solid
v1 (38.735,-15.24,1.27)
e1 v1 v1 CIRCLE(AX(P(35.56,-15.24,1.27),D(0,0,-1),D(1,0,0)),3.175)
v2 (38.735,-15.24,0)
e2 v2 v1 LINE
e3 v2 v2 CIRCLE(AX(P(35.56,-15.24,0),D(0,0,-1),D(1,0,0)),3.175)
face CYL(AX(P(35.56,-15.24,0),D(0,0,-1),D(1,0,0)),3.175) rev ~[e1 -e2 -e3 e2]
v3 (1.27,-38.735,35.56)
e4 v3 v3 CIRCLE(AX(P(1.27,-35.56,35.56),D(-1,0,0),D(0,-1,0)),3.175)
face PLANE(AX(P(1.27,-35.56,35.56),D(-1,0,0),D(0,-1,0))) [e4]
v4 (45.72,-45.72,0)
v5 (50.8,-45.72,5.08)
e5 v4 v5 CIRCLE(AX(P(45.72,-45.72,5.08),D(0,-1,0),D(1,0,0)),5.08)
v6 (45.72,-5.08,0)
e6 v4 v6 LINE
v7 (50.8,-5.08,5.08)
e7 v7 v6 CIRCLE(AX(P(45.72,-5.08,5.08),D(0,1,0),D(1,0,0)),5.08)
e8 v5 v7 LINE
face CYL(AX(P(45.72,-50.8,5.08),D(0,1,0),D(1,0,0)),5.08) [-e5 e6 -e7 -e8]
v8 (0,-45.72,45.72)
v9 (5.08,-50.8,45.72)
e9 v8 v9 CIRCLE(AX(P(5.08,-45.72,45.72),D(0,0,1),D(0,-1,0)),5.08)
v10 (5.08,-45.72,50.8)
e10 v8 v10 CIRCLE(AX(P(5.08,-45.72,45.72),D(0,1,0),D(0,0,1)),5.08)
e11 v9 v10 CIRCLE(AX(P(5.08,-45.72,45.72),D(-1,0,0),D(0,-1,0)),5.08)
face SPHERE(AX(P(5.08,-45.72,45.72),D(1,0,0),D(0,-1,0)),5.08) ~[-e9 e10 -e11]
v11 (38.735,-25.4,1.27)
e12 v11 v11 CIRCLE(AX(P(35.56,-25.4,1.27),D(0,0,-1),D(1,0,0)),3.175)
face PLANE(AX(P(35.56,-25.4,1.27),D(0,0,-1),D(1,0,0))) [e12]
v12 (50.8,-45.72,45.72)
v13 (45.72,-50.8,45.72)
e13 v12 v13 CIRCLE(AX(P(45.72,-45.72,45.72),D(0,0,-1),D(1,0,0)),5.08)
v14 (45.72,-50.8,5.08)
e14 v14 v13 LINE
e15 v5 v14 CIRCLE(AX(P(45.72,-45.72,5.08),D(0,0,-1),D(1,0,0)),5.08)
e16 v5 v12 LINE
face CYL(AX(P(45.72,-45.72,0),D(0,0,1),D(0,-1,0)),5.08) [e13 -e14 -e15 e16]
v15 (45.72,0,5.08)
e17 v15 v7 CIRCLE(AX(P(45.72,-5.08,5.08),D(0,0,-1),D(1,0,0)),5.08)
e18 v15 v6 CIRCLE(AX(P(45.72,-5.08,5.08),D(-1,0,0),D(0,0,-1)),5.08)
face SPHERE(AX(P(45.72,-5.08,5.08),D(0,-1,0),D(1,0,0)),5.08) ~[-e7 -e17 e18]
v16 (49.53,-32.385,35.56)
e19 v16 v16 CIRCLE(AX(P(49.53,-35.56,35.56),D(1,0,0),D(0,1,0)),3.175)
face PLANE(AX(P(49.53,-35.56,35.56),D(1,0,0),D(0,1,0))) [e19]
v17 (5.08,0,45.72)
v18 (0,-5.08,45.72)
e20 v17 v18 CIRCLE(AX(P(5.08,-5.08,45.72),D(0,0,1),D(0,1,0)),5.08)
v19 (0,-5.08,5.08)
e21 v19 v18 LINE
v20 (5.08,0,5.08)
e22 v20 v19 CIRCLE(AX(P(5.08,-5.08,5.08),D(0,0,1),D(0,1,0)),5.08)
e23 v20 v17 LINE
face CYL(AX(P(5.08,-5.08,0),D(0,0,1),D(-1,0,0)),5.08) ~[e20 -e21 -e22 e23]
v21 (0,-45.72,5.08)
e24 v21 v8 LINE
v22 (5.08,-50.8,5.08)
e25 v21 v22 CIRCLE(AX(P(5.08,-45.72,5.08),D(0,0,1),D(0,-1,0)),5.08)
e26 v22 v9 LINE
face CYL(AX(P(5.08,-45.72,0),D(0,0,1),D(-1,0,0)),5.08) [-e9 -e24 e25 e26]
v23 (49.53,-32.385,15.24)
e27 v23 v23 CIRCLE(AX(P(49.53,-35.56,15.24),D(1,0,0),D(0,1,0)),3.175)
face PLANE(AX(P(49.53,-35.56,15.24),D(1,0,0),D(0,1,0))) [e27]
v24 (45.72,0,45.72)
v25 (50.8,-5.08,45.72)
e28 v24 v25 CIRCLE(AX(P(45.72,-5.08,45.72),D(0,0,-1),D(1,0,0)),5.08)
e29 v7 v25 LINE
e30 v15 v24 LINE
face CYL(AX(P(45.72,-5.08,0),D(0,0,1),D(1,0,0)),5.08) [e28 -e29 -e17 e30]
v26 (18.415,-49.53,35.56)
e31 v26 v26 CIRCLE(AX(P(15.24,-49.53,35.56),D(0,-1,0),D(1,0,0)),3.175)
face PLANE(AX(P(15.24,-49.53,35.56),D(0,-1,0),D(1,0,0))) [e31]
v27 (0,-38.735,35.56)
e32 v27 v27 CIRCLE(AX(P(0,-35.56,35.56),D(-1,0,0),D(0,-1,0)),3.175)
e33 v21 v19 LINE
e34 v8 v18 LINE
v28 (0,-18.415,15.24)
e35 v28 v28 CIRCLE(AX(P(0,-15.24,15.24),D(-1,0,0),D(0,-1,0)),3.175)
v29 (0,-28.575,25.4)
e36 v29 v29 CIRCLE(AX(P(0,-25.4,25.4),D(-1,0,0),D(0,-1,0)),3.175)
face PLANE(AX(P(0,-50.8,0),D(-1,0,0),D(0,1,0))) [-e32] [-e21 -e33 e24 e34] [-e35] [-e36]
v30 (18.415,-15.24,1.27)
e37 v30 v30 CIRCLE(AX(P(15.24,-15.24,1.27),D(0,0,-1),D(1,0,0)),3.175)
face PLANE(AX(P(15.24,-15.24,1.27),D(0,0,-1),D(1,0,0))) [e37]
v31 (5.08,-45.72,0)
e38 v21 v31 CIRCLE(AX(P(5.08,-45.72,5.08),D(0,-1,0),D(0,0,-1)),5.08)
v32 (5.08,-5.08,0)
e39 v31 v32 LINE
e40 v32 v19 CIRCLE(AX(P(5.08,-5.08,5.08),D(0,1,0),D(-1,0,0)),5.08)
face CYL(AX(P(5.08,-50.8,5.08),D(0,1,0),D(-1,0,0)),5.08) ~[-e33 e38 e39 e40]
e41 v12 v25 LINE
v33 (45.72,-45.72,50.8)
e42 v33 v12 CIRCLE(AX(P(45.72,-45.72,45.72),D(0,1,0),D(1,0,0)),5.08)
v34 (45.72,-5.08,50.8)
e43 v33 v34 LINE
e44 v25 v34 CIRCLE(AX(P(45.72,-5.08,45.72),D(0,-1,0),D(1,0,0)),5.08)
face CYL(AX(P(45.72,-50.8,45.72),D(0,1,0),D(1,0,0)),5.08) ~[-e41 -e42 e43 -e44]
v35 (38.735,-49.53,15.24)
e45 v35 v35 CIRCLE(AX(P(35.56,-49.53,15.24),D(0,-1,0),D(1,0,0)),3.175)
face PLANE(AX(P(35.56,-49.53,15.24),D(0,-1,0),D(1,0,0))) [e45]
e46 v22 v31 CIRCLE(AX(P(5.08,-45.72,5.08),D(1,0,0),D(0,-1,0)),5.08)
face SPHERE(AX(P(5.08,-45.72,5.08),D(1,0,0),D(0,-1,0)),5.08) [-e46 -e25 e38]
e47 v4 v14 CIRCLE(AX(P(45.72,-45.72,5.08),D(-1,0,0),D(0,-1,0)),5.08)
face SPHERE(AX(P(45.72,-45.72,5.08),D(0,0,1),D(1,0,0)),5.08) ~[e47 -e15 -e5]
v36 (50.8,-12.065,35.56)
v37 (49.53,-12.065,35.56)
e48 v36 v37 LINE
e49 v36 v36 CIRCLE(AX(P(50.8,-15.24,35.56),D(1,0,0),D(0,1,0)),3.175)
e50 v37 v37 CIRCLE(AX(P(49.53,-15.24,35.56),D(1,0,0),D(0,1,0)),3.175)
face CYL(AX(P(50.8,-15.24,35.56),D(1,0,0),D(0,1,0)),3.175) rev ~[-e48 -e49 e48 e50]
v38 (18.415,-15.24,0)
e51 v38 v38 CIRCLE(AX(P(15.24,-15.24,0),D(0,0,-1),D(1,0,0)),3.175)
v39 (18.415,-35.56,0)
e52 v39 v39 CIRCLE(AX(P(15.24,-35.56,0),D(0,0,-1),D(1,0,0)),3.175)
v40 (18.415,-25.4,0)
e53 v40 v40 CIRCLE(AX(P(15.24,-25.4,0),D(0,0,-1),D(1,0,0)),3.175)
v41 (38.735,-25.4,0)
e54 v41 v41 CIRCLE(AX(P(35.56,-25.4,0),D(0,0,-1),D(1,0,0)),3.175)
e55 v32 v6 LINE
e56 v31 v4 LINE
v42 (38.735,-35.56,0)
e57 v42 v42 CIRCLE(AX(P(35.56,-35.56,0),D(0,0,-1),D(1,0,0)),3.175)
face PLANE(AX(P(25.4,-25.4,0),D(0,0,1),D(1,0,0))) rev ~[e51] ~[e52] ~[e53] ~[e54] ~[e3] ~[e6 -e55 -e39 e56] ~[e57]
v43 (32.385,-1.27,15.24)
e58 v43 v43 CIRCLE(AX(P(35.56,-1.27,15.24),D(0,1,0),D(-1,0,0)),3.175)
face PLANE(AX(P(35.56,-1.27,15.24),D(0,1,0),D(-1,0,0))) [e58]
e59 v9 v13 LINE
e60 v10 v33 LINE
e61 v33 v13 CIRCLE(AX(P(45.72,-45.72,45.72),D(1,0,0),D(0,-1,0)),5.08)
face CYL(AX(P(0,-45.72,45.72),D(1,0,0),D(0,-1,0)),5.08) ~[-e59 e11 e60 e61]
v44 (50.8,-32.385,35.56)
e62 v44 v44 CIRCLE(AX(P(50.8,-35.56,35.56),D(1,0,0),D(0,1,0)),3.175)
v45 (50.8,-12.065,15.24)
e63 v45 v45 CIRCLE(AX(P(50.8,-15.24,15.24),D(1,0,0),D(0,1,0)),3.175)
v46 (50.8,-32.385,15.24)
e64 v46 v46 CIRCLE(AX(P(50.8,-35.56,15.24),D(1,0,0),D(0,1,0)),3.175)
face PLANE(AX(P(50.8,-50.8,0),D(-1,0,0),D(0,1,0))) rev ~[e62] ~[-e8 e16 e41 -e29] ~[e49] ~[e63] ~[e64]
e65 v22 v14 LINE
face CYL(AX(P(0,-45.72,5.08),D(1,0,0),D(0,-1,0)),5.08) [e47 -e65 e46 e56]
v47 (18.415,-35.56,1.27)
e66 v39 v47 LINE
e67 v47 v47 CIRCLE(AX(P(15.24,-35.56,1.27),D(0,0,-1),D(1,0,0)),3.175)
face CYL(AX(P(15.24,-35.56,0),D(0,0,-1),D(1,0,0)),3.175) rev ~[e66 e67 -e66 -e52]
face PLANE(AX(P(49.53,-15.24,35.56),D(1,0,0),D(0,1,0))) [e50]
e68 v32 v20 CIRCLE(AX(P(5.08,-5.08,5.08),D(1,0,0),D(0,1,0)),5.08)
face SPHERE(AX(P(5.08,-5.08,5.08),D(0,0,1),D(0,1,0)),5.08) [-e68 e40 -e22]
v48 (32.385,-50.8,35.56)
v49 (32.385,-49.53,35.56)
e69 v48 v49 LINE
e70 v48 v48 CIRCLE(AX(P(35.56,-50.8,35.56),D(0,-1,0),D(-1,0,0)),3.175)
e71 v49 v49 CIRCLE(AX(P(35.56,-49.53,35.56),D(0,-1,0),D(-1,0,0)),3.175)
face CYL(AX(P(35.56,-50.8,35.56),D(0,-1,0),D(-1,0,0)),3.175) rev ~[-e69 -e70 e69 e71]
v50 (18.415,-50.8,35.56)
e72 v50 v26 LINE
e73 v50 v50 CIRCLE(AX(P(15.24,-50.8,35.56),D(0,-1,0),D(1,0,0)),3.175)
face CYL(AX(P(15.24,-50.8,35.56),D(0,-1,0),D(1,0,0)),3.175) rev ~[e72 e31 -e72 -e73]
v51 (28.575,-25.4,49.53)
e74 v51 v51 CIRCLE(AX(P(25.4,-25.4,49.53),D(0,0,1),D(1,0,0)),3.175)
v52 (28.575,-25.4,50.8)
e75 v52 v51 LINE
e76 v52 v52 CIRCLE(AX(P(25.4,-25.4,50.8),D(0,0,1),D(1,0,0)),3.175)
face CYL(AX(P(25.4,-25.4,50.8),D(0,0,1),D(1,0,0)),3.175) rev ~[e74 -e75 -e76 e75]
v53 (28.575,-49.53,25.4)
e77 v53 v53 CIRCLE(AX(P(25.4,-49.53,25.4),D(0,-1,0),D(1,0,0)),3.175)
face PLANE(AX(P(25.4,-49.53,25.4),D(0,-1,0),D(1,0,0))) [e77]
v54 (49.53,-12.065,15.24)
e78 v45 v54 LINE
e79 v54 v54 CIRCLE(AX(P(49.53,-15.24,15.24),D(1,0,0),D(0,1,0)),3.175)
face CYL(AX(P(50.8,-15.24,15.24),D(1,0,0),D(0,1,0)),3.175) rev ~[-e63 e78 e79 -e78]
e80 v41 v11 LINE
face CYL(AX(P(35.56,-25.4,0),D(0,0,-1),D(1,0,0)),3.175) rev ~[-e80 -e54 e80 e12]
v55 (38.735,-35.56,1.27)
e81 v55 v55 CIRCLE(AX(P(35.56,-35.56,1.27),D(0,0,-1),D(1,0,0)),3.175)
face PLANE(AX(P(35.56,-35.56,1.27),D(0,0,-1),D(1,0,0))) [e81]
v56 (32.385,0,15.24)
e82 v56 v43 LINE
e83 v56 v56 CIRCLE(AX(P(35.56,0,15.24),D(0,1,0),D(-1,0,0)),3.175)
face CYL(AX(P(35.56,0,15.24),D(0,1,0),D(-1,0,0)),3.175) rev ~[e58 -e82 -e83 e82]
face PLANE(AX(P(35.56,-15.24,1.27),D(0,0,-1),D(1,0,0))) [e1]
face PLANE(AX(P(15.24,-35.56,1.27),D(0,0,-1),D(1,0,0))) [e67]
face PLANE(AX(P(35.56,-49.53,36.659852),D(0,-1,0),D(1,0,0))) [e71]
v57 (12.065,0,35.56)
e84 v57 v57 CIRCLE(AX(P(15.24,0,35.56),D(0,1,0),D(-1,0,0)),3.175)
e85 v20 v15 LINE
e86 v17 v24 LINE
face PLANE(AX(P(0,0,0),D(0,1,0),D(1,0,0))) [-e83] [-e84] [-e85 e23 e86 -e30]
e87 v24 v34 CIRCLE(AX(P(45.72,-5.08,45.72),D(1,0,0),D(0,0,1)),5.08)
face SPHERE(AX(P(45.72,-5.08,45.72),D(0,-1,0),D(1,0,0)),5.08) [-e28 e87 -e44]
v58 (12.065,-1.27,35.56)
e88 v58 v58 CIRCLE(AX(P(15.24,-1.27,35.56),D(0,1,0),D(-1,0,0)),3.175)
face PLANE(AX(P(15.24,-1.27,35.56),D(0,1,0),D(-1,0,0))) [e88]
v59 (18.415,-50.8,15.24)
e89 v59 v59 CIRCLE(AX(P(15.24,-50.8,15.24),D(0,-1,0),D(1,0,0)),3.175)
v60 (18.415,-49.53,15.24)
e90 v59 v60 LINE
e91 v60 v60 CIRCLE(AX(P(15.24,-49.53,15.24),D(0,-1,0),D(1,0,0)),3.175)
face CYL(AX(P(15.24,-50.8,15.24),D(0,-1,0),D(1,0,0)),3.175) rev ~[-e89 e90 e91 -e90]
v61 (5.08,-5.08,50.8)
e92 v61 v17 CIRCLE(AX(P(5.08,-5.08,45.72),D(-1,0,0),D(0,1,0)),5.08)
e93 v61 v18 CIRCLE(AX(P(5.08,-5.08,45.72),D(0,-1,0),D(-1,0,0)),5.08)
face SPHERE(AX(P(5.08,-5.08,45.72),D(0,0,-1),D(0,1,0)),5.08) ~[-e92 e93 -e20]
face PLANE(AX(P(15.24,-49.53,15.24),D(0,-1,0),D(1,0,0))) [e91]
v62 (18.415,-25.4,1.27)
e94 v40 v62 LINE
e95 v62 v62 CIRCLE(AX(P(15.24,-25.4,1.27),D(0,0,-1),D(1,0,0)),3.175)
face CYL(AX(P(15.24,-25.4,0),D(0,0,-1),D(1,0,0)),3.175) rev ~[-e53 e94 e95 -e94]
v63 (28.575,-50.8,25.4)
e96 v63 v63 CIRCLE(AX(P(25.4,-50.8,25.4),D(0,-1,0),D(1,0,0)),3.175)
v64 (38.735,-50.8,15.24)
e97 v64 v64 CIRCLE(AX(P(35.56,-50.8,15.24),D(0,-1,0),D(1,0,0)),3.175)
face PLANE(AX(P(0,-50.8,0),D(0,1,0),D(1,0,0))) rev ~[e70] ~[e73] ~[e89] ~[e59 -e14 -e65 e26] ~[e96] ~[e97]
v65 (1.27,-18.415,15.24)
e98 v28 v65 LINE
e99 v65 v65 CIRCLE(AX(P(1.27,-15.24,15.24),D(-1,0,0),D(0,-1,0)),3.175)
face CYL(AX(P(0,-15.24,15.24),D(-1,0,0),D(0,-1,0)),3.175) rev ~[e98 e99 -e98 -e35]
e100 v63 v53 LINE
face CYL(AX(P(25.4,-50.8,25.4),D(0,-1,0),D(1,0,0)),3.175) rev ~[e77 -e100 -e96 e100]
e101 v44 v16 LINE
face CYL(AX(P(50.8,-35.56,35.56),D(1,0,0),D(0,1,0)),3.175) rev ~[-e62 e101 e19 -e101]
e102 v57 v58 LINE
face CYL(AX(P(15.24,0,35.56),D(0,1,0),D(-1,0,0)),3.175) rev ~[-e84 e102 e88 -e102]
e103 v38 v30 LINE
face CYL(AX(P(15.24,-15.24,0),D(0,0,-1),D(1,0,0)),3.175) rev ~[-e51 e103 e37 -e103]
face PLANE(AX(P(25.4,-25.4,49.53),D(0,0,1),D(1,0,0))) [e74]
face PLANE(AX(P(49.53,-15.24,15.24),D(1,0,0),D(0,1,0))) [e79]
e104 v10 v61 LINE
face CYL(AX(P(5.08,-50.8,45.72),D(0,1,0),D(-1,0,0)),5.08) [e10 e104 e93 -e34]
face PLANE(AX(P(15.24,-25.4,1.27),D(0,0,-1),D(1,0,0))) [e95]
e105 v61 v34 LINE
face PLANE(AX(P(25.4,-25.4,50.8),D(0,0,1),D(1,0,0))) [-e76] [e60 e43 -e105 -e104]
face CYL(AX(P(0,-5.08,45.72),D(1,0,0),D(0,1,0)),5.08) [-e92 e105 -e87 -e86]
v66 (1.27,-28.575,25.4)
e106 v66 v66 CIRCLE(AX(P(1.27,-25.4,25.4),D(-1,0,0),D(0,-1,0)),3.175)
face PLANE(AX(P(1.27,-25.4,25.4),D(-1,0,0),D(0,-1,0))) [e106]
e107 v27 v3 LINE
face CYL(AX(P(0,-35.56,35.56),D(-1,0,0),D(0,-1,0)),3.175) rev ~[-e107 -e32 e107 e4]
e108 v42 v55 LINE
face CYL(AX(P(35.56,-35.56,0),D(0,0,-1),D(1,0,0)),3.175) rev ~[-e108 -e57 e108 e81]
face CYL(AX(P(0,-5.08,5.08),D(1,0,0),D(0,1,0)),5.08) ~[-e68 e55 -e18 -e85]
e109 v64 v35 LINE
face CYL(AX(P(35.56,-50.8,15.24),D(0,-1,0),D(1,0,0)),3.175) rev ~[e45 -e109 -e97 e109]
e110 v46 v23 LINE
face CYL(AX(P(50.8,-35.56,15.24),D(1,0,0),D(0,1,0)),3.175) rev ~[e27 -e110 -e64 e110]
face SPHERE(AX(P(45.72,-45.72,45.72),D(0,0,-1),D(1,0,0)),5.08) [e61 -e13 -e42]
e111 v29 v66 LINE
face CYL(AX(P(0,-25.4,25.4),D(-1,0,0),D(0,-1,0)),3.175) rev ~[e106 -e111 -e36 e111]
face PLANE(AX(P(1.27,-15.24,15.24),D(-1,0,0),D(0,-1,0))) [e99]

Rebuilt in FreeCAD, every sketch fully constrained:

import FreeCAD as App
import Part
import Sketcher
Q = App.Units.Quantity

doc = App.newDocument("Part")
body = doc.addObject("PartDesign::Body", "Body")

# Sketch on XY plane
sketch1 = body.newObject("Sketcher::SketchObject", "Sketch")
sketch1.AttachmentSupport = (doc.getObject("XY_Plane"), [""])
sketch1.MapMode = "FlatFace"
sketch1.addGeometry([
    Part.LineSegment(App.Vector(0, 0, 0), App.Vector(0, -51, 0)),
    Part.LineSegment(App.Vector(0, -51, 0), App.Vector(51, -51, 0)),
    Part.LineSegment(App.Vector(51, -51, 0), App.Vector(51, 0, 0)),
    Part.LineSegment(App.Vector(51, 0, 0), App.Vector(0, 0, 0)),
], False)
sketch1.addConstraint([
    Sketcher.Constraint("Coincident", 0, 2, 1, 1),
    Sketcher.Constraint("Coincident", 1, 2, 2, 1),
    Sketcher.Constraint("Coincident", 2, 2, 3, 1),
    Sketcher.Constraint("Coincident", 3, 2, 0, 1),
    Sketcher.Constraint("Vertical", 0),
    Sketcher.Constraint("Horizontal", 1),
    Sketcher.Constraint("Vertical", 2),
    Sketcher.Constraint("Horizontal", 3),
    Sketcher.Constraint("Coincident", 3, 2, -1, 1),
    Sketcher.Constraint("Equal", 3, 0),
    Sketcher.Constraint("DistanceX", 1, 1, 1, 2, Q("2 in")),
])
pad1 = body.newObject("PartDesign::Pad", "Pad")
pad1.Profile = sketch1
pad1.Length = Q("2 in")
doc.recompute()

fillet = body.newObject("PartDesign::Fillet", "Fillet")
fillet.Base = (pad1, ["Edge1"])
fillet.UseAllEdges = True
fillet.Radius = Q("0.2 in")

# Sketch on XY plane
sketch2 = body.newObject("Sketcher::SketchObject", "Sketch001")
sketch2.AttachmentSupport = (doc.getObject("XY_Plane"), [""])
sketch2.MapMode = "FlatFace"
sketch2.AttachmentOffset = App.Placement(App.Vector(0, 0, 2 * 25.4), App.Rotation())
sketch2.addGeometry(Part.Circle(App.Vector(25.4, -25.4, 0), App.Vector(0, 0, 1), 3.2), False)
sketch2.addConstraint([
    Sketcher.Constraint("Diameter", 0, Q("0.25 in")),
    Sketcher.Constraint("DistanceX", -1, 1, 0, 3, Q("1 in")),
    Sketcher.Constraint("DistanceY", 0, 3, -1, 1, Q("1 in")),
])
pocket1 = body.newObject("PartDesign::Pocket", "Pocket")
pocket1.Profile = sketch2
pocket1.Length = Q("0.05 in")

# Sketch on XY plane
sketch3 = body.newObject("Sketcher::SketchObject", "Sketch002")
sketch3.AttachmentSupport = (doc.getObject("XY_Plane"), [""])
sketch3.MapMode = "FlatFace"
sketch3.addGeometry([
    Part.Circle(App.Vector(15.2, -15.2, 0), App.Vector(0, 0, 1), 3.2),  # 0
    Part.Circle(App.Vector(35.6, -15.2, 0), App.Vector(0, 0, 1), 3.2),  # 1
    Part.Circle(App.Vector(35.6, -35.6, 0), App.Vector(0, 0, 1), 3.2),  # 2
    Part.Circle(App.Vector(15.2, -35.6, 0), App.Vector(0, 0, 1), 3.2),  # 3
    Part.Circle(App.Vector(15.2, -25.4, 0), App.Vector(0, 0, 1), 3.2),  # 4
    Part.Circle(App.Vector(35.6, -25.4, 0), App.Vector(0, 0, 1), 3.2),  # 5
], False)
sketch3.addConstraint([
    Sketcher.Constraint("Equal", 0, 1),
    Sketcher.Constraint("Equal", 1, 2),
    Sketcher.Constraint("Equal", 2, 3),
    Sketcher.Constraint("Equal", 3, 4),
    Sketcher.Constraint("Equal", 4, 5),
    Sketcher.Constraint("Horizontal", 0, 3, 1, 3),
    Sketcher.Constraint("Horizontal", 2, 3, 3, 3),
    Sketcher.Constraint("Horizontal", 4, 3, 5, 3),
    Sketcher.Constraint("Vertical", 1, 3, 2, 3),
    Sketcher.Constraint("Vertical", 0, 3, 3, 3),
    Sketcher.Constraint("Vertical", 3, 3, 4, 3),
    Sketcher.Constraint("Vertical", 2, 3, 5, 3),
    Sketcher.Constraint("Diameter", 0, Q("0.25 in")),
    Sketcher.Constraint("DistanceY", 4, 3, -1, 1, Q("1 in")),
    Sketcher.Constraint("DistanceX", -1, 1, 0, 3, Q("0.6 in")),
    Sketcher.Constraint("DistanceY", 0, 3, -1, 1, Q("0.6 in")),
    Sketcher.Constraint("DistanceX", -1, 1, 1, 3, Q("1.4 in")),
    Sketcher.Constraint("DistanceY", 2, 3, -1, 1, Q("1.4 in")),
])
pocket2 = body.newObject("PartDesign::Pocket", "Pocket001")
pocket2.Profile = sketch3
pocket2.Length = Q("0.05 in")
pocket2.Reversed = True

# Sketch on XZ plane
sketch4 = body.newObject("Sketcher::SketchObject", "Sketch003")
sketch4.AttachmentSupport = (doc.getObject("XZ_Plane"), [""])
sketch4.MapMode = "FlatFace"
sketch4.AttachmentOffset = App.Placement(App.Vector(0, 0, 2 * 25.4), App.Rotation())
sketch4.addGeometry([
    Part.Circle(App.Vector(25.4, 25.4, 0), App.Vector(0, 0, 1), 3.2),  # 0
    Part.Circle(App.Vector(35.6, 35.6, 0), App.Vector(0, 0, 1), 3.2),  # 1
    Part.Circle(App.Vector(35.6, 15.2, 0), App.Vector(0, 0, 1), 3.2),  # 2
    Part.Circle(App.Vector(15.2, 35.6, 0), App.Vector(0, 0, 1), 3.2),  # 3
    Part.Circle(App.Vector(15.2, 15.2, 0), App.Vector(0, 0, 1), 3.2),  # 4
], False)
sketch4.addConstraint([
    Sketcher.Constraint("Equal", 0, 1),
    Sketcher.Constraint("Equal", 1, 2),
    Sketcher.Constraint("Equal", 2, 3),
    Sketcher.Constraint("Equal", 3, 4),
    Sketcher.Constraint("Horizontal", 1, 3, 3, 3),
    Sketcher.Constraint("Horizontal", 2, 3, 4, 3),
    Sketcher.Constraint("Vertical", 1, 3, 2, 3),
    Sketcher.Constraint("Vertical", 3, 3, 4, 3),
    Sketcher.Constraint("Diameter", 0, Q("0.25 in")),
    Sketcher.Constraint("DistanceX", -1, 1, 0, 3, Q("1 in")),
    Sketcher.Constraint("DistanceY", -1, 1, 0, 3, Q("1 in")),
    Sketcher.Constraint("DistanceX", -1, 1, 1, 3, Q("1.4 in")),
    Sketcher.Constraint("DistanceY", -1, 1, 1, 3, Q("1.4 in")),
    Sketcher.Constraint("DistanceY", -1, 1, 2, 3, Q("0.6 in")),
    Sketcher.Constraint("DistanceX", -1, 1, 3, 3, Q("0.6 in")),
])
pocket3 = body.newObject("PartDesign::Pocket", "Pocket002")
pocket3.Profile = sketch4
pocket3.Length = Q("0.05 in")

# Sketch on XZ plane
sketch5 = body.newObject("Sketcher::SketchObject", "Sketch004")
sketch5.AttachmentSupport = (doc.getObject("XZ_Plane"), [""])
sketch5.MapMode = "FlatFace"
sketch5.addGeometry([
    Part.Circle(App.Vector(15.2, 35.6, 0), App.Vector(0, 0, 1), 3.2),
    Part.Circle(App.Vector(35.6, 15.2, 0), App.Vector(0, 0, 1), 3.2),
], False)
sketch5.addConstraint([
    Sketcher.Constraint("Equal", 0, 1),
    Sketcher.Constraint("Diameter", 0, Q("0.25 in")),
    Sketcher.Constraint("DistanceX", -1, 1, 0, 3, Q("0.6 in")),
    Sketcher.Constraint("DistanceY", -1, 1, 0, 3, Q("1.4 in")),
    Sketcher.Constraint("DistanceX", -1, 1, 1, 3, Q("1.4 in")),
    Sketcher.Constraint("DistanceY", -1, 1, 1, 3, Q("0.6 in")),
])
pocket4 = body.newObject("PartDesign::Pocket", "Pocket003")
pocket4.Profile = sketch5
pocket4.Length = Q("0.05 in")
pocket4.Reversed = True

# Sketch on YZ plane
sketch6 = body.newObject("Sketcher::SketchObject", "Sketch005")
sketch6.AttachmentSupport = (doc.getObject("YZ_Plane"), [""])
sketch6.MapMode = "FlatFace"
sketch6.addGeometry([
    Part.Circle(App.Vector(-25.4, 25.4, 0), App.Vector(0, 0, 1), 3.2),
    Part.Circle(App.Vector(-35.6, 35.6, 0), App.Vector(0, 0, 1), 3.2),
    Part.Circle(App.Vector(-15.2, 15.2, 0), App.Vector(0, 0, 1), 3.2),
], False)
sketch6.addConstraint([
    Sketcher.Constraint("Equal", 0, 1),
    Sketcher.Constraint("Equal", 1, 2),
    Sketcher.Constraint("Diameter", 0, Q("0.25 in")),
    Sketcher.Constraint("DistanceX", 0, 3, -1, 1, Q("1 in")),
    Sketcher.Constraint("DistanceY", -1, 1, 0, 3, Q("1 in")),
    Sketcher.Constraint("DistanceX", 1, 3, -1, 1, Q("1.4 in")),
    Sketcher.Constraint("DistanceY", -1, 1, 1, 3, Q("1.4 in")),
    Sketcher.Constraint("DistanceX", 2, 3, -1, 1, Q("0.6 in")),
    Sketcher.Constraint("DistanceY", -1, 1, 2, 3, Q("0.6 in")),
])
pocket5 = body.newObject("PartDesign::Pocket", "Pocket004")
pocket5.Profile = sketch6
pocket5.Length = Q("0.05 in")
pocket5.Reversed = True

# Sketch on YZ plane
sketch7 = body.newObject("Sketcher::SketchObject", "Sketch006")
sketch7.AttachmentSupport = (doc.getObject("YZ_Plane"), [""])
sketch7.MapMode = "FlatFace"
sketch7.AttachmentOffset = App.Placement(App.Vector(0, 0, 2 * 25.4), App.Rotation())
sketch7.addGeometry([
    Part.Circle(App.Vector(-15.2, 35.6, 0), App.Vector(0, 0, 1), 3.2),
    Part.Circle(App.Vector(-35.6, 35.6, 0), App.Vector(0, 0, 1), 3.2),
    Part.Circle(App.Vector(-35.6, 15.2, 0), App.Vector(0, 0, 1), 3.2),
    Part.Circle(App.Vector(-15.2, 15.2, 0), App.Vector(0, 0, 1), 3.2),
], False)
sketch7.addConstraint([
    Sketcher.Constraint("Equal", 0, 1),
    Sketcher.Constraint("Equal", 1, 2),
    Sketcher.Constraint("Equal", 2, 3),
    Sketcher.Constraint("Horizontal", 0, 3, 1, 3),
    Sketcher.Constraint("Horizontal", 2, 3, 3, 3),
    Sketcher.Constraint("Vertical", 1, 3, 2, 3),
    Sketcher.Constraint("Vertical", 0, 3, 3, 3),
    Sketcher.Constraint("Diameter", 0, Q("0.25 in")),
    Sketcher.Constraint("DistanceX", 0, 3, -1, 1, Q("0.6 in")),
    Sketcher.Constraint("DistanceY", -1, 1, 0, 3, Q("1.4 in")),
    Sketcher.Constraint("DistanceX", 1, 3, -1, 1, Q("1.4 in")),
    Sketcher.Constraint("DistanceY", -1, 1, 2, 3, Q("0.6 in")),
])
pocket6 = body.newObject("PartDesign::Pocket", "Pocket005")
pocket6.Profile = sketch7
pocket6.Length = Q("0.05 in")

doc.recompute()
